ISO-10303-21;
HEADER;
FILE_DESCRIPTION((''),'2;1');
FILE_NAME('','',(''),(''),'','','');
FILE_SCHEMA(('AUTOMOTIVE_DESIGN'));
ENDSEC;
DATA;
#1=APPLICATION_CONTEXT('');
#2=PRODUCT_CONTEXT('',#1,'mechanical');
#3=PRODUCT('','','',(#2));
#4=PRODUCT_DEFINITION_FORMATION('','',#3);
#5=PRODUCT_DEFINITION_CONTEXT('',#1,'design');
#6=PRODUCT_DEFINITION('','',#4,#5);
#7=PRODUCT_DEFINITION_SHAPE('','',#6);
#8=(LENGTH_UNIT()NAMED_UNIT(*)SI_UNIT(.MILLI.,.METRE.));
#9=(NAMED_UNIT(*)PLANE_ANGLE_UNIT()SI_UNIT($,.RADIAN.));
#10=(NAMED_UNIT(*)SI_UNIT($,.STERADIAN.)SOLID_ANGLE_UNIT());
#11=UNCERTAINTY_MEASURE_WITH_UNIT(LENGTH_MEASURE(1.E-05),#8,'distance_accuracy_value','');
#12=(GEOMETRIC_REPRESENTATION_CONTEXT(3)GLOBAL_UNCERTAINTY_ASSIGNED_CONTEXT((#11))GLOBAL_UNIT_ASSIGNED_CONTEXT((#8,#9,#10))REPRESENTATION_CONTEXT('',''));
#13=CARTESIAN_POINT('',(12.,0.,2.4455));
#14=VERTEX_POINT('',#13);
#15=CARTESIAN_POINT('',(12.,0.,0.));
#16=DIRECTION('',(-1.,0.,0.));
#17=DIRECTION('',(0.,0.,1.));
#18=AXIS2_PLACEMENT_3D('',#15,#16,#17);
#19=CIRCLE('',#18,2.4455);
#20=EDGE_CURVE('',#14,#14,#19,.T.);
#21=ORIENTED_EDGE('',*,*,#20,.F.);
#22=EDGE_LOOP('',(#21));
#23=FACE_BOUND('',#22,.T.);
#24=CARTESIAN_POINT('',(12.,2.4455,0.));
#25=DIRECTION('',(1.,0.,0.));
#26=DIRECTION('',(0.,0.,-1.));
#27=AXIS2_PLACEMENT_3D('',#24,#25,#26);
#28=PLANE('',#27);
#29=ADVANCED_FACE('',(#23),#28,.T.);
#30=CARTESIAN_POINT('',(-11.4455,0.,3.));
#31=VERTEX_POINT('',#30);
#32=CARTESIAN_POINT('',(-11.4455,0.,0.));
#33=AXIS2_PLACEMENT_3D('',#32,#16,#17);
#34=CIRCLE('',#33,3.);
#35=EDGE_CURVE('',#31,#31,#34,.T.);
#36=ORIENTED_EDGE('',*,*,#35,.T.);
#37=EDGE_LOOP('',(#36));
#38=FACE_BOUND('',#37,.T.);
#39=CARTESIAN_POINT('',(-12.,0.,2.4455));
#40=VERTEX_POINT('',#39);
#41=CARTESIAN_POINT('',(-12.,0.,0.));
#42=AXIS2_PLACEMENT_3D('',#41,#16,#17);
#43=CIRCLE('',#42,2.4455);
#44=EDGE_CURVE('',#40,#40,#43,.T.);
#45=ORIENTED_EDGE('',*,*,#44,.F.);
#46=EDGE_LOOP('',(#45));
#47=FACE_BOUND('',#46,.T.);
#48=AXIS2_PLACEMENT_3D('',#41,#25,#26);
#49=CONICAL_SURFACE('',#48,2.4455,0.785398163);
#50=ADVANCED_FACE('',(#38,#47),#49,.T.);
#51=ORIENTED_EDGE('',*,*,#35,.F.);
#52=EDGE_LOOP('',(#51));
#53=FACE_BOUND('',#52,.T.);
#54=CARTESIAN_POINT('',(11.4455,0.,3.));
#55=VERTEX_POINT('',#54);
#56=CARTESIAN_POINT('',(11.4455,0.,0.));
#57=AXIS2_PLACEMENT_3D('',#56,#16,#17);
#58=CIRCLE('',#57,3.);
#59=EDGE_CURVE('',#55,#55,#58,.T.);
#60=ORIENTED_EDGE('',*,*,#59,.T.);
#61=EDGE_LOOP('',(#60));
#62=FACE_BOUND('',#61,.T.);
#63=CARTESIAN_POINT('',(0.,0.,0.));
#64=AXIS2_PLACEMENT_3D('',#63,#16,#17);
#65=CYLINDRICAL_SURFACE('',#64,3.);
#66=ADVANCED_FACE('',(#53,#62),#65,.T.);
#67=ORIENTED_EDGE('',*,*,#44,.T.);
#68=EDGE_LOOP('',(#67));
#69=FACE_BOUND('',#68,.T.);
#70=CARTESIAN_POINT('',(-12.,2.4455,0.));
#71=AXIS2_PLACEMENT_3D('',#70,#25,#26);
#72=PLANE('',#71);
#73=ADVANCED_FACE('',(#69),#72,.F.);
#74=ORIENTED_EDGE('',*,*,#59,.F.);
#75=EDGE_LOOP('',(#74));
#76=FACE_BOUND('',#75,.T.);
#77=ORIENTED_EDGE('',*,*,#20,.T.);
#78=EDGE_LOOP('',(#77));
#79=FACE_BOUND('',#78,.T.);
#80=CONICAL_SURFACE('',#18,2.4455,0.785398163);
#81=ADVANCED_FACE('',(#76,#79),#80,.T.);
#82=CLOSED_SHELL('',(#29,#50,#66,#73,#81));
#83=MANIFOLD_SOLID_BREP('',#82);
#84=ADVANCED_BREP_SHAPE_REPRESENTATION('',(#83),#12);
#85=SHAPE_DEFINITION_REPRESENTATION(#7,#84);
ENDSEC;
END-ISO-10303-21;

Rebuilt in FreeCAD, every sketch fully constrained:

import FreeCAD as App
import Part
import Sketcher


def add_polygon(sketch, points):
    """Adds a closed chain of lines whose ends are joined by coincident constraints."""
    first, n = sketch.GeometryCount, len(points)
    for a, b in zip(points, points[1:] + points[:1]):
        sketch.addGeometry(Part.LineSegment(App.Vector(*a, 0), App.Vector(*b, 0)), False)
    for i in range(n):
        sketch.addConstraint(Sketcher.Constraint("Coincident", first + i, 2, first + (i + 1) % n, 1))

doc = App.newDocument("Part")
body = doc.addObject("PartDesign::Body", "Body")

sketch1 = body.newObject("Sketcher::SketchObject", "Sketch")
sketch1.AttachmentSupport = (doc.getObject("XY_Plane"), [""])
sketch1.MapMode = "FlatFace"
add_polygon(sketch1, [(-12, 2.4), (-12, 0), (12, 0), (12, 2.4), (11.4, 3), (-11.4, 3)])
sketch1.addConstraint(Sketcher.Constraint("Vertical", 0))
sketch1.addConstraint(Sketcher.Constraint("Horizontal", 1))
sketch1.addConstraint(Sketcher.Constraint("Vertical", 2))
sketch1.addConstraint(Sketcher.Constraint("Horizontal", 4))
sketch1.addConstraint(Sketcher.Constraint("Symmetric", 0, 2, 1, 2, -1, 1))
sketch1.addConstraint(Sketcher.Constraint("Perpendicular", 3, 5))
sketch1.addConstraint(Sketcher.Constraint("Horizontal", 2, 2, 5, 2))
sketch1.addConstraint(Sketcher.Constraint("Equal", 3, 5))
sketch1.addConstraint(Sketcher.Constraint("DistanceX", 1, 1, 1, 2, 24.0))
sketch1.addConstraint(Sketcher.Constraint("DistanceY", -1, 1, 3, 2, 3.0))
sketch1.addConstraint(Sketcher.Constraint("DistanceX", 4, 2, 4, 1, 22.891))
revolution = body.newObject("PartDesign::Revolution", "Revolution")
revolution.Profile = sketch1
revolution.ReferenceAxis = (sketch1, ["H_Axis"])
revolution.Angle = 360

doc.recompute()
